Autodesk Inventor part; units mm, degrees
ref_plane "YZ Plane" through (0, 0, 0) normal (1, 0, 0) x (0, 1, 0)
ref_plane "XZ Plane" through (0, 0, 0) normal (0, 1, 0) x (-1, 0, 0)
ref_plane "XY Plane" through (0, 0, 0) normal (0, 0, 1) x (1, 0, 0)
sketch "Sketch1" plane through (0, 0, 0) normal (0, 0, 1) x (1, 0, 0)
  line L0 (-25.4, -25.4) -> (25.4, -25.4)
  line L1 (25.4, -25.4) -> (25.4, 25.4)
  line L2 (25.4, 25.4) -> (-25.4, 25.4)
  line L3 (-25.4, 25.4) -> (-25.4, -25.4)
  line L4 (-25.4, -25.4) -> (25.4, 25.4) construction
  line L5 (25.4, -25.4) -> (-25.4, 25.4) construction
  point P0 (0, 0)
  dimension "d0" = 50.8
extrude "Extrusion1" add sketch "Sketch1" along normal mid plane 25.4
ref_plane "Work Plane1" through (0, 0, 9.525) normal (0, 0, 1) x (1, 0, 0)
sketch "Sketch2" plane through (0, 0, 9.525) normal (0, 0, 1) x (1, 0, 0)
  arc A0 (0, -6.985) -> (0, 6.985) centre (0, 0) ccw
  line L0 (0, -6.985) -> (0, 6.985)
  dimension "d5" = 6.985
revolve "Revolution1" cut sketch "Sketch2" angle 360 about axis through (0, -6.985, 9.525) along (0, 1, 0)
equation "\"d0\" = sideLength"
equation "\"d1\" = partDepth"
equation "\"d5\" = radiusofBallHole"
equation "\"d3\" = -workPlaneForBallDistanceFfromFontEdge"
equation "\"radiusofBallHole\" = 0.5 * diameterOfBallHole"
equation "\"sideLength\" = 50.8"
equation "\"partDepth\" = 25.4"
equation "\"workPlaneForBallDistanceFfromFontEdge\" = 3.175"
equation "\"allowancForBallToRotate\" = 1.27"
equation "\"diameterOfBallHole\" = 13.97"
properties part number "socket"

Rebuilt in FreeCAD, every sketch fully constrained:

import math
import FreeCAD as App
import Part
import Sketcher

V = App.Vector
Q = App.Units.Quantity

doc = App.newDocument("Part")
body = doc.addObject("PartDesign::Body", "Body")

# Sketch on XY plane
sketch1 = body.newObject("Sketcher::SketchObject", "Sketch")
sketch1.AttachmentSupport = (doc.getObject("XY_Plane"), [""])
sketch1.MapMode = "FlatFace"
sketch1.addGeometry([
    Part.LineSegment(V(-25, 25, 0), V(-25, -25, 0)),
    Part.LineSegment(V(-25, -25, 0), V(25, -25, 0)),
    Part.LineSegment(V(25, -25, 0), V(25, 25, 0)),
    Part.LineSegment(V(25, 25, 0), V(-25, 25, 0)),
], False)
sketch1.addConstraint([
    Sketcher.Constraint("Coincident", 0, 2, 1, 1),
    Sketcher.Constraint("Coincident", 1, 2, 2, 1),
    Sketcher.Constraint("Coincident", 2, 2, 3, 1),
    Sketcher.Constraint("Coincident", 3, 2, 0, 1),
    Sketcher.Constraint("Vertical", 0),
    Sketcher.Constraint("Horizontal", 1),
    Sketcher.Constraint("Vertical", 2),
    Sketcher.Constraint("Horizontal", 3),
    Sketcher.Constraint("Symmetric", 0, 2, 2, 2, -1, 1),
    Sketcher.Constraint("Equal", 3, 0),
    Sketcher.Constraint("DistanceX", 1, 1, 1, 2, Q("2 in")),
])
pad1 = body.newObject("PartDesign::Pad", "Pad")
pad1.Profile = sketch1
pad1.Length = Q("1 in")
pad1.Midplane = True

# Sketch on XY plane
sketch2 = body.newObject("Sketcher::SketchObject", "Sketch001")
sketch2.AttachmentSupport = (doc.getObject("XY_Plane"), [""])
sketch2.MapMode = "FlatFace"
sketch2.AttachmentOffset = App.Placement(V(0, 0, 0.375 * 25.4), App.Rotation())
sketch2.addGeometry([
    Part.LineSegment(V(0, 7, 0), V(0, -7, 0)),
    Part.ArcOfCircle(Part.Circle(V(0, 0, 0), V(0, 0, 1), 7), math.radians(-90), math.radians(90)),
], False)
sketch2.addConstraint([
    Sketcher.Constraint("Coincident", 0, 1, 1, 2),
    Sketcher.Constraint("Coincident", 1, 1, 0, 2),
    Sketcher.Constraint("Vertical", 0),
    Sketcher.Constraint("Coincident", 1, 3, -1, 1),
    Sketcher.Constraint("PointOnObject", 0, 1, -2),
    Sketcher.Constraint("Radius", 1, Q("0.275 in")),
])
groove = body.newObject("PartDesign::Groove", "Groove")
groove.Profile = sketch2
groove.ReferenceAxis = (sketch2, ["V_Axis"])
groove.Angle = 360

doc.recompute()
